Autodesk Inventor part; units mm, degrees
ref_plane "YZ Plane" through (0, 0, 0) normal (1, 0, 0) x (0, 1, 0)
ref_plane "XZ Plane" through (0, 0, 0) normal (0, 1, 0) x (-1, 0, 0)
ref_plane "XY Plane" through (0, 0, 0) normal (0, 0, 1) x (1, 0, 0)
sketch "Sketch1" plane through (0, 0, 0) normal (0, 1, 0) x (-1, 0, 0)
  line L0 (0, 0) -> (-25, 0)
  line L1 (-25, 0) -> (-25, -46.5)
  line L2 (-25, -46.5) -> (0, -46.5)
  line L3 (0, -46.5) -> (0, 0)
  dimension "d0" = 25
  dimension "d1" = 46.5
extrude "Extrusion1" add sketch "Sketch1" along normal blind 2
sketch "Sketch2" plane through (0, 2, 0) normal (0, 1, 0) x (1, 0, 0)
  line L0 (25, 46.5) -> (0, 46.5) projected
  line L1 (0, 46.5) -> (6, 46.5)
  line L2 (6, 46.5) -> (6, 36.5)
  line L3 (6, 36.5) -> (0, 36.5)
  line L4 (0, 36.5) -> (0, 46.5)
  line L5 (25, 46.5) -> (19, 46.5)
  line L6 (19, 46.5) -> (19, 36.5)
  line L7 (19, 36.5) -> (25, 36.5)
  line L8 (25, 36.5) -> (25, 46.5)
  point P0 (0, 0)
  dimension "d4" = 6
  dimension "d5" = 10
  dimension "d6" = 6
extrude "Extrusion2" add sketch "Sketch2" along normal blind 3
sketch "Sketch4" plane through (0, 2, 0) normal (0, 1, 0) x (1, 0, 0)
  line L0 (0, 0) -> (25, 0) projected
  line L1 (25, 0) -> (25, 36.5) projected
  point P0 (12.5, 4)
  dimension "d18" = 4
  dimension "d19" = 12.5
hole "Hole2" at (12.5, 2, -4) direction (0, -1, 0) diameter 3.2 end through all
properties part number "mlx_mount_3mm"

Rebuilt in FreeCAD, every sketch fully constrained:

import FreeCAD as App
import Part
import Sketcher

V = App.Vector
Q = App.Units.Quantity

doc = App.newDocument("Part")
body = doc.addObject("PartDesign::Body", "Body")

# Sketch on XZ plane
sketch1 = body.newObject("Sketcher::SketchObject", "Sketch")
sketch1.AttachmentSupport = (doc.getObject("XZ_Plane"), [""])
sketch1.MapMode = "FlatFace"
sketch1.addGeometry([
    Part.LineSegment(V(0, -46, 0), V(0, 0, 0)),
    Part.LineSegment(V(0, 0, 0), V(25, 0, 0)),
    Part.LineSegment(V(25, 0, 0), V(25, -46, 0)),
    Part.LineSegment(V(25, -46, 0), V(0, -46, 0)),
], False)
sketch1.addConstraint([
    Sketcher.Constraint("Coincident", 0, 2, 1, 1),
    Sketcher.Constraint("Coincident", 1, 2, 2, 1),
    Sketcher.Constraint("Coincident", 2, 2, 3, 1),
    Sketcher.Constraint("Coincident", 3, 2, 0, 1),
    Sketcher.Constraint("Vertical", 0),
    Sketcher.Constraint("Horizontal", 1),
    Sketcher.Constraint("Vertical", 2),
    Sketcher.Constraint("Horizontal", 3),
    Sketcher.Constraint("Coincident", 0, 2, -1, 1),
    Sketcher.Constraint("DistanceX", 1, 1, 1, 2, Q("25 mm")),
    Sketcher.Constraint("DistanceY", 0, 1, 0, 2, Q("46.5 mm")),
])
pad1 = body.newObject("PartDesign::Pad", "Pad")
pad1.Profile = sketch1
pad1.Length = 2
pad1.Reversed = True

# Sketch on XZ plane
sketch2 = body.newObject("Sketcher::SketchObject", "Sketch001")
sketch2.AttachmentSupport = (doc.getObject("XZ_Plane"), [""])
sketch2.MapMode = "FlatFace"
sketch2.AttachmentOffset = App.Placement(V(0, 0, -2), App.Rotation())
sketch2.addGeometry([
    Part.LineSegment(V(25, -36, 0), V(25, -46, 0)),  # 0
    Part.LineSegment(V(25, -46, 0), V(19, -46, 0)),  # 1
    Part.LineSegment(V(19, -46, 0), V(19, -36, 0)),  # 2
    Part.LineSegment(V(19, -36, 0), V(25, -36, 0)),  # 3
    Part.LineSegment(V(6, -36, 0), V(6, -46, 0)),  # 4
    Part.LineSegment(V(6, -46, 0), V(0, -46, 0)),  # 5
    Part.LineSegment(V(0, -46, 0), V(0, -36, 0)),  # 6
    Part.LineSegment(V(0, -36, 0), V(6, -36, 0)),  # 7
], False)
sketch2.addConstraint([
    Sketcher.Constraint("Coincident", 0, 2, 1, 1),
    Sketcher.Constraint("Coincident", 1, 2, 2, 1),
    Sketcher.Constraint("Coincident", 2, 2, 3, 1),
    Sketcher.Constraint("Coincident", 3, 2, 0, 1),
    Sketcher.Constraint("Coincident", 4, 2, 5, 1),
    Sketcher.Constraint("Coincident", 5, 2, 6, 1),
    Sketcher.Constraint("Coincident", 6, 2, 7, 1),
    Sketcher.Constraint("Coincident", 7, 2, 4, 1),
    Sketcher.Constraint("Vertical", 0),
    Sketcher.Constraint("Horizontal", 1),
    Sketcher.Constraint("Vertical", 2),
    Sketcher.Constraint("Horizontal", 3),
    Sketcher.Constraint("Vertical", 4),
    Sketcher.Constraint("Horizontal", 5),
    Sketcher.Constraint("Vertical", 6),
    Sketcher.Constraint("Horizontal", 7),
    Sketcher.Constraint("PointOnObject", 5, 2, -2),
    Sketcher.Constraint("Horizontal", 1, 2, 4, 2),
    Sketcher.Constraint("Horizontal", 3, 2, 6, 2),
    Sketcher.Constraint("Equal", 3, 5),
    Sketcher.Constraint("DistanceX", 1, 2, 1, 1, Q("6 mm")),
    Sketcher.Constraint("DistanceY", 0, 2, 0, 1, Q("10 mm")),
    Sketcher.Constraint("DistanceX", -1, 1, 0, 2, Q("25 mm")),
    Sketcher.Constraint("DistanceY", 0, 2, -1, 1, Q("46.5 mm")),
])
pad2 = body.newObject("PartDesign::Pad", "Pad001")
pad2.Profile = sketch2
pad2.Length = 3
pad2.Reversed = True

# Sketch on XZ plane
sketch3 = body.newObject("Sketcher::SketchObject", "Sketch002")
sketch3.AttachmentSupport = (doc.getObject("XZ_Plane"), [""])
sketch3.MapMode = "FlatFace"
sketch3.AttachmentOffset = App.Placement(V(0, 0, -2), App.Rotation())
sketch3.addGeometry(Part.Circle(V(12.5, -4, 0), V(0, 0, 1), 1.6), False)
sketch3.addConstraint([
    Sketcher.Constraint("Diameter", 0, Q("3.2 mm")),
    Sketcher.Constraint("DistanceY", 0, 3, -1, 1, Q("4 mm")),
    Sketcher.Constraint("DistanceX", -1, 1, 0, 3, Q("12.5 mm")),
])
doc.recompute()
hole = body.newObject("PartDesign::Hole", "Hole")
hole.Profile = sketch3
hole.ThreadType = "None"
hole.Diameter = 3.2
hole.DepthType = "ThroughAll"
hole.Reversed = True

doc.recompute()
